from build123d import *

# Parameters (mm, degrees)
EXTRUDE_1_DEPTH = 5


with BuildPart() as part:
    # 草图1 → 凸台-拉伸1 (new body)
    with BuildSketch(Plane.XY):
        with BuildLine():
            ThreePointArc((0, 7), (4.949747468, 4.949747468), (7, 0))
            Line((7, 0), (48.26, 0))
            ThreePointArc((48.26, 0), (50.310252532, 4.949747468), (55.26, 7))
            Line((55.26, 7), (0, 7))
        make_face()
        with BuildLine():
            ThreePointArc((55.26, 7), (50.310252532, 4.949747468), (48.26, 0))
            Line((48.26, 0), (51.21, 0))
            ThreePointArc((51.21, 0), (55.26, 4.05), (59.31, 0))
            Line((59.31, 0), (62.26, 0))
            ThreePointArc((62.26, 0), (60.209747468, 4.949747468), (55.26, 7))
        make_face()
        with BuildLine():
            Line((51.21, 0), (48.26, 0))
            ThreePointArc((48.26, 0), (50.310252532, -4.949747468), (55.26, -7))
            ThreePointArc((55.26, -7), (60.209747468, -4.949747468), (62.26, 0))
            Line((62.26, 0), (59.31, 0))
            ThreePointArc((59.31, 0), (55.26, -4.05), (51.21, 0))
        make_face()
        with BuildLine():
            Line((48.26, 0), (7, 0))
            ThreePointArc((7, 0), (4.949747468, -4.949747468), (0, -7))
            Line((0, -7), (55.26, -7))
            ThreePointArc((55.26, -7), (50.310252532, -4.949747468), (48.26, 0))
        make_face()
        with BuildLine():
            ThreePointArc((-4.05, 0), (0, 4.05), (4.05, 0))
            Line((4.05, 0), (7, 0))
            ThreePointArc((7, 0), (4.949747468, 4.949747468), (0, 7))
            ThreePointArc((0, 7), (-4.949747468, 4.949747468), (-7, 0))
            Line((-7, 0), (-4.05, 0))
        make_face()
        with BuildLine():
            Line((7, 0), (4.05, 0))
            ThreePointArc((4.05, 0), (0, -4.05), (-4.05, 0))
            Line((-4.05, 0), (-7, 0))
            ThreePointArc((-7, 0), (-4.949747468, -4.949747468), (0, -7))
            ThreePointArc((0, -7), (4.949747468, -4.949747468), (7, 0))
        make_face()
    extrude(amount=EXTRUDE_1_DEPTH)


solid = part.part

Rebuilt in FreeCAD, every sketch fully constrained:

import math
import FreeCAD as App
import Part
import Sketcher

doc = App.newDocument("Part")
body = doc.addObject("PartDesign::Body", "Body")

# Sketch on XY plane
sketch1 = body.newObject("Sketcher::SketchObject", "Sketch")
sketch1.AttachmentSupport = (doc.getObject("XY_Plane"), [""])
sketch1.MapMode = "FlatFace"
sketch1.addGeometry(Part.LineSegment(App.Vector(0, -7, 0), App.Vector(55.3, -7, 0)), False)
sketch1.addGeometry(Part.ArcOfCircle(Part.Circle(App.Vector(55.3, 0, 0), App.Vector(0, 0, 1), 7), math.radians(-90), math.radians(0)), False)
sketch1.addGeometry(Part.ArcOfCircle(Part.Circle(App.Vector(55.3, 0, 0), App.Vector(0, 0, 1), 7), math.radians(0), math.radians(90)), False)
sketch1.addGeometry(Part.LineSegment(App.Vector(55.3, 7, 0), App.Vector(0, 7, 0)), False)
sketch1.addGeometry(Part.ArcOfCircle(Part.Circle(App.Vector(0, 0, 0), App.Vector(0, 0, 1), 7), math.radians(90), math.radians(180)), False)
sketch1.addGeometry(Part.ArcOfCircle(Part.Circle(App.Vector(0, 0, 0), App.Vector(0, 0, 1), 7), math.radians(-180), math.radians(-90)), False)
sketch1.addGeometry(Part.Circle(App.Vector(0, 0, 0), App.Vector(0, 0, 1), 4), False)
sketch1.addGeometry(Part.Circle(App.Vector(55.3, 0, 0), App.Vector(0, 0, 1), 4), False)
sketch1.addConstraint(Sketcher.Constraint("Tangent", 0, 2, 1, 1))
sketch1.addConstraint(Sketcher.Constraint("Tangent", 1, 2, 2, 1))
sketch1.addConstraint(Sketcher.Constraint("Tangent", 2, 2, 3, 1))
sketch1.addConstraint(Sketcher.Constraint("Tangent", 3, 2, 4, 1))
sketch1.addConstraint(Sketcher.Constraint("Tangent", 4, 2, 5, 1))
sketch1.addConstraint(Sketcher.Constraint("Tangent", 5, 2, 0, 1))
sketch1.addConstraint(Sketcher.Constraint("Horizontal", 0))
sketch1.addConstraint(Sketcher.Constraint("Horizontal", 3))
sketch1.addConstraint(Sketcher.Constraint("Coincident", 4, 3, -1, 1))
sketch1.addConstraint(Sketcher.Constraint("Coincident", 6, 3, -1, 1))
sketch1.addConstraint(Sketcher.Constraint("Coincident", 7, 3, 1, 3))
sketch1.addConstraint(Sketcher.Constraint("Equal", 1, 2))
sketch1.addConstraint(Sketcher.Constraint("Equal", 2, 4))
sketch1.addConstraint(Sketcher.Constraint("Equal", 6, 7))
sketch1.addConstraint(Sketcher.Constraint("PointOnObject", 1, 2, -1))
sketch1.addConstraint(Sketcher.Constraint("PointOnObject", 4, 2, -1))
sketch1.addConstraint(Sketcher.Constraint("Radius", 1, 7.0))
sketch1.addConstraint(Sketcher.Constraint("Diameter", 6, 8.1))
sketch1.addConstraint(Sketcher.Constraint("DistanceX", 0, 1, 0, 2, 55.26))
pad1 = body.newObject("PartDesign::Pad", "Pad")
pad1.Profile = sketch1
pad1.Length = 5

doc.recompute()
